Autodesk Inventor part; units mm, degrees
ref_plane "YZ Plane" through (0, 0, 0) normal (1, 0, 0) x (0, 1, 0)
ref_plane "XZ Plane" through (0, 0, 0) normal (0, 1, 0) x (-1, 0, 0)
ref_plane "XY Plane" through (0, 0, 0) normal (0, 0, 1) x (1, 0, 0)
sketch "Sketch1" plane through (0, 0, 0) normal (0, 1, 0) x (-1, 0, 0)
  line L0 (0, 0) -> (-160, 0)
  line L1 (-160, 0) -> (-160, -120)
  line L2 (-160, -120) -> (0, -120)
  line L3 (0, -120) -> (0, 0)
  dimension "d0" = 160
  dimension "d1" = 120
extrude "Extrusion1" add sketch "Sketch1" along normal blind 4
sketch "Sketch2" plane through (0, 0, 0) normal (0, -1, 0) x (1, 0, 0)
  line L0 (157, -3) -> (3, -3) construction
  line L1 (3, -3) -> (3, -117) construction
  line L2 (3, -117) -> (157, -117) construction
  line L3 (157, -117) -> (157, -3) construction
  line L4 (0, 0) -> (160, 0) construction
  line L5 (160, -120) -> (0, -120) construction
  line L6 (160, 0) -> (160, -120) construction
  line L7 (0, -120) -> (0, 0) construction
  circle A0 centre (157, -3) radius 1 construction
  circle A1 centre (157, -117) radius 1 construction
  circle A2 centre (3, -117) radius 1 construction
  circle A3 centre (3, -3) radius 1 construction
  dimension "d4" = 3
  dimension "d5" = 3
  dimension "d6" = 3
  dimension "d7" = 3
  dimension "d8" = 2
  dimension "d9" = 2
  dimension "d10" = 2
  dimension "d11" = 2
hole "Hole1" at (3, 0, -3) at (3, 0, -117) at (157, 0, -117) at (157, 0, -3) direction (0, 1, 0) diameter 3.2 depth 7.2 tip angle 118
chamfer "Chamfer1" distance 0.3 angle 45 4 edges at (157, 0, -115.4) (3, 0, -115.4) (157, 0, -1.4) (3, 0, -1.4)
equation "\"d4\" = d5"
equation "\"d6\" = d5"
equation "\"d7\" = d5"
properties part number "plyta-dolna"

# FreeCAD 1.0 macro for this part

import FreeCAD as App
import Part
import Sketcher


def edges_at(feature, points):
    """Names of the edges that pass closest to the given points."""
    edges = feature.Shape.Edges
    near = lambda p: min(range(len(edges)), key=lambda i: edges[i].distToShape(Part.Vertex(*p))[0])
    return sorted({f"Edge{near(p) + 1}" for p in points})

doc = App.newDocument("Part")
body = doc.addObject("PartDesign::Body", "Body")

# Sketch on XZ plane
sketch1 = body.newObject("Sketcher::SketchObject", "Sketch")
sketch1.AttachmentSupport = (doc.getObject("XZ_Plane"), [""])
sketch1.MapMode = "FlatFace"
sketch1.addGeometry(Part.LineSegment(App.Vector(0, -120, 0), App.Vector(0, 0, 0)), False)
sketch1.addGeometry(Part.LineSegment(App.Vector(0, 0, 0), App.Vector(160, 0, 0)), False)
sketch1.addGeometry(Part.LineSegment(App.Vector(160, 0, 0), App.Vector(160, -120, 0)), False)
sketch1.addGeometry(Part.LineSegment(App.Vector(160, -120, 0), App.Vector(0, -120, 0)), False)
sketch1.addConstraint(Sketcher.Constraint("Coincident", 0, 2, 1, 1))
sketch1.addConstraint(Sketcher.Constraint("Coincident", 1, 2, 2, 1))
sketch1.addConstraint(Sketcher.Constraint("Coincident", 2, 2, 3, 1))
sketch1.addConstraint(Sketcher.Constraint("Coincident", 3, 2, 0, 1))
sketch1.addConstraint(Sketcher.Constraint("Vertical", 0))
sketch1.addConstraint(Sketcher.Constraint("Horizontal", 1))
sketch1.addConstraint(Sketcher.Constraint("Vertical", 2))
sketch1.addConstraint(Sketcher.Constraint("Horizontal", 3))
sketch1.addConstraint(Sketcher.Constraint("Coincident", 0, 2, -1, 1))
sketch1.addConstraint(Sketcher.Constraint("DistanceX", 1, 1, 1, 2, 160.0))
sketch1.addConstraint(Sketcher.Constraint("DistanceY", 0, 1, 0, 2, 120.0))
pad1 = body.newObject("PartDesign::Pad", "Pad")
pad1.Profile = sketch1
pad1.Length = 4
pad1.Reversed = True

# Sketch on XZ plane
sketch2 = body.newObject("Sketcher::SketchObject", "Sketch001")
sketch2.AttachmentSupport = (doc.getObject("XZ_Plane"), [""])
sketch2.MapMode = "FlatFace"
sketch2.addGeometry(Part.Circle(App.Vector(3, -3, 0), App.Vector(0, 0, 1), 1.6), False)
sketch2.addGeometry(Part.Circle(App.Vector(3, -117, 0), App.Vector(0, 0, 1), 1.6), False)
sketch2.addGeometry(Part.Circle(App.Vector(157, -117, 0), App.Vector(0, 0, 1), 1.6), False)
sketch2.addGeometry(Part.Circle(App.Vector(157, -3, 0), App.Vector(0, 0, 1), 1.6), False)
sketch2.addConstraint(Sketcher.Constraint("Equal", 0, 1))
sketch2.addConstraint(Sketcher.Constraint("Equal", 1, 2))
sketch2.addConstraint(Sketcher.Constraint("Equal", 2, 3))
sketch2.addConstraint(Sketcher.Constraint("Horizontal", 1, 3, 2, 3))
sketch2.addConstraint(Sketcher.Constraint("Horizontal", 0, 3, 3, 3))
sketch2.addConstraint(Sketcher.Constraint("Vertical", 0, 3, 1, 3))
sketch2.addConstraint(Sketcher.Constraint("Vertical", 2, 3, 3, 3))
sketch2.addConstraint(Sketcher.Constraint("Diameter", 0, 3.2))
sketch2.addConstraint(Sketcher.Constraint("DistanceX", -1, 1, 0, 3, 3.0))
sketch2.addConstraint(Sketcher.Constraint("DistanceY", 0, 3, -1, 1, 3.0))
sketch2.addConstraint(Sketcher.Constraint("DistanceY", 1, 3, -1, 1, 117.0))
sketch2.addConstraint(Sketcher.Constraint("DistanceX", -1, 1, 2, 3, 157.0))
doc.recompute()
hole = body.newObject("PartDesign::Hole", "Hole")
hole.Profile = sketch2
hole.ThreadType = "None"
hole.Diameter = 3.2
hole.DepthType = "Dimension"
hole.Depth = 7.2
hole.DrillPoint = "Angled"
hole.DrillPointAngle = 118
doc.recompute()

chamfer = body.newObject("PartDesign::Chamfer", "Chamfer")
chamfer.Base = (hole, edges_at(hole, [
    (157, 0, -115.4),
    (3, 0, -115.4),
    (157, 0, -1.4),
    (3, 0, -1.4),
]))
chamfer.Size = 0.3

doc.recompute()
